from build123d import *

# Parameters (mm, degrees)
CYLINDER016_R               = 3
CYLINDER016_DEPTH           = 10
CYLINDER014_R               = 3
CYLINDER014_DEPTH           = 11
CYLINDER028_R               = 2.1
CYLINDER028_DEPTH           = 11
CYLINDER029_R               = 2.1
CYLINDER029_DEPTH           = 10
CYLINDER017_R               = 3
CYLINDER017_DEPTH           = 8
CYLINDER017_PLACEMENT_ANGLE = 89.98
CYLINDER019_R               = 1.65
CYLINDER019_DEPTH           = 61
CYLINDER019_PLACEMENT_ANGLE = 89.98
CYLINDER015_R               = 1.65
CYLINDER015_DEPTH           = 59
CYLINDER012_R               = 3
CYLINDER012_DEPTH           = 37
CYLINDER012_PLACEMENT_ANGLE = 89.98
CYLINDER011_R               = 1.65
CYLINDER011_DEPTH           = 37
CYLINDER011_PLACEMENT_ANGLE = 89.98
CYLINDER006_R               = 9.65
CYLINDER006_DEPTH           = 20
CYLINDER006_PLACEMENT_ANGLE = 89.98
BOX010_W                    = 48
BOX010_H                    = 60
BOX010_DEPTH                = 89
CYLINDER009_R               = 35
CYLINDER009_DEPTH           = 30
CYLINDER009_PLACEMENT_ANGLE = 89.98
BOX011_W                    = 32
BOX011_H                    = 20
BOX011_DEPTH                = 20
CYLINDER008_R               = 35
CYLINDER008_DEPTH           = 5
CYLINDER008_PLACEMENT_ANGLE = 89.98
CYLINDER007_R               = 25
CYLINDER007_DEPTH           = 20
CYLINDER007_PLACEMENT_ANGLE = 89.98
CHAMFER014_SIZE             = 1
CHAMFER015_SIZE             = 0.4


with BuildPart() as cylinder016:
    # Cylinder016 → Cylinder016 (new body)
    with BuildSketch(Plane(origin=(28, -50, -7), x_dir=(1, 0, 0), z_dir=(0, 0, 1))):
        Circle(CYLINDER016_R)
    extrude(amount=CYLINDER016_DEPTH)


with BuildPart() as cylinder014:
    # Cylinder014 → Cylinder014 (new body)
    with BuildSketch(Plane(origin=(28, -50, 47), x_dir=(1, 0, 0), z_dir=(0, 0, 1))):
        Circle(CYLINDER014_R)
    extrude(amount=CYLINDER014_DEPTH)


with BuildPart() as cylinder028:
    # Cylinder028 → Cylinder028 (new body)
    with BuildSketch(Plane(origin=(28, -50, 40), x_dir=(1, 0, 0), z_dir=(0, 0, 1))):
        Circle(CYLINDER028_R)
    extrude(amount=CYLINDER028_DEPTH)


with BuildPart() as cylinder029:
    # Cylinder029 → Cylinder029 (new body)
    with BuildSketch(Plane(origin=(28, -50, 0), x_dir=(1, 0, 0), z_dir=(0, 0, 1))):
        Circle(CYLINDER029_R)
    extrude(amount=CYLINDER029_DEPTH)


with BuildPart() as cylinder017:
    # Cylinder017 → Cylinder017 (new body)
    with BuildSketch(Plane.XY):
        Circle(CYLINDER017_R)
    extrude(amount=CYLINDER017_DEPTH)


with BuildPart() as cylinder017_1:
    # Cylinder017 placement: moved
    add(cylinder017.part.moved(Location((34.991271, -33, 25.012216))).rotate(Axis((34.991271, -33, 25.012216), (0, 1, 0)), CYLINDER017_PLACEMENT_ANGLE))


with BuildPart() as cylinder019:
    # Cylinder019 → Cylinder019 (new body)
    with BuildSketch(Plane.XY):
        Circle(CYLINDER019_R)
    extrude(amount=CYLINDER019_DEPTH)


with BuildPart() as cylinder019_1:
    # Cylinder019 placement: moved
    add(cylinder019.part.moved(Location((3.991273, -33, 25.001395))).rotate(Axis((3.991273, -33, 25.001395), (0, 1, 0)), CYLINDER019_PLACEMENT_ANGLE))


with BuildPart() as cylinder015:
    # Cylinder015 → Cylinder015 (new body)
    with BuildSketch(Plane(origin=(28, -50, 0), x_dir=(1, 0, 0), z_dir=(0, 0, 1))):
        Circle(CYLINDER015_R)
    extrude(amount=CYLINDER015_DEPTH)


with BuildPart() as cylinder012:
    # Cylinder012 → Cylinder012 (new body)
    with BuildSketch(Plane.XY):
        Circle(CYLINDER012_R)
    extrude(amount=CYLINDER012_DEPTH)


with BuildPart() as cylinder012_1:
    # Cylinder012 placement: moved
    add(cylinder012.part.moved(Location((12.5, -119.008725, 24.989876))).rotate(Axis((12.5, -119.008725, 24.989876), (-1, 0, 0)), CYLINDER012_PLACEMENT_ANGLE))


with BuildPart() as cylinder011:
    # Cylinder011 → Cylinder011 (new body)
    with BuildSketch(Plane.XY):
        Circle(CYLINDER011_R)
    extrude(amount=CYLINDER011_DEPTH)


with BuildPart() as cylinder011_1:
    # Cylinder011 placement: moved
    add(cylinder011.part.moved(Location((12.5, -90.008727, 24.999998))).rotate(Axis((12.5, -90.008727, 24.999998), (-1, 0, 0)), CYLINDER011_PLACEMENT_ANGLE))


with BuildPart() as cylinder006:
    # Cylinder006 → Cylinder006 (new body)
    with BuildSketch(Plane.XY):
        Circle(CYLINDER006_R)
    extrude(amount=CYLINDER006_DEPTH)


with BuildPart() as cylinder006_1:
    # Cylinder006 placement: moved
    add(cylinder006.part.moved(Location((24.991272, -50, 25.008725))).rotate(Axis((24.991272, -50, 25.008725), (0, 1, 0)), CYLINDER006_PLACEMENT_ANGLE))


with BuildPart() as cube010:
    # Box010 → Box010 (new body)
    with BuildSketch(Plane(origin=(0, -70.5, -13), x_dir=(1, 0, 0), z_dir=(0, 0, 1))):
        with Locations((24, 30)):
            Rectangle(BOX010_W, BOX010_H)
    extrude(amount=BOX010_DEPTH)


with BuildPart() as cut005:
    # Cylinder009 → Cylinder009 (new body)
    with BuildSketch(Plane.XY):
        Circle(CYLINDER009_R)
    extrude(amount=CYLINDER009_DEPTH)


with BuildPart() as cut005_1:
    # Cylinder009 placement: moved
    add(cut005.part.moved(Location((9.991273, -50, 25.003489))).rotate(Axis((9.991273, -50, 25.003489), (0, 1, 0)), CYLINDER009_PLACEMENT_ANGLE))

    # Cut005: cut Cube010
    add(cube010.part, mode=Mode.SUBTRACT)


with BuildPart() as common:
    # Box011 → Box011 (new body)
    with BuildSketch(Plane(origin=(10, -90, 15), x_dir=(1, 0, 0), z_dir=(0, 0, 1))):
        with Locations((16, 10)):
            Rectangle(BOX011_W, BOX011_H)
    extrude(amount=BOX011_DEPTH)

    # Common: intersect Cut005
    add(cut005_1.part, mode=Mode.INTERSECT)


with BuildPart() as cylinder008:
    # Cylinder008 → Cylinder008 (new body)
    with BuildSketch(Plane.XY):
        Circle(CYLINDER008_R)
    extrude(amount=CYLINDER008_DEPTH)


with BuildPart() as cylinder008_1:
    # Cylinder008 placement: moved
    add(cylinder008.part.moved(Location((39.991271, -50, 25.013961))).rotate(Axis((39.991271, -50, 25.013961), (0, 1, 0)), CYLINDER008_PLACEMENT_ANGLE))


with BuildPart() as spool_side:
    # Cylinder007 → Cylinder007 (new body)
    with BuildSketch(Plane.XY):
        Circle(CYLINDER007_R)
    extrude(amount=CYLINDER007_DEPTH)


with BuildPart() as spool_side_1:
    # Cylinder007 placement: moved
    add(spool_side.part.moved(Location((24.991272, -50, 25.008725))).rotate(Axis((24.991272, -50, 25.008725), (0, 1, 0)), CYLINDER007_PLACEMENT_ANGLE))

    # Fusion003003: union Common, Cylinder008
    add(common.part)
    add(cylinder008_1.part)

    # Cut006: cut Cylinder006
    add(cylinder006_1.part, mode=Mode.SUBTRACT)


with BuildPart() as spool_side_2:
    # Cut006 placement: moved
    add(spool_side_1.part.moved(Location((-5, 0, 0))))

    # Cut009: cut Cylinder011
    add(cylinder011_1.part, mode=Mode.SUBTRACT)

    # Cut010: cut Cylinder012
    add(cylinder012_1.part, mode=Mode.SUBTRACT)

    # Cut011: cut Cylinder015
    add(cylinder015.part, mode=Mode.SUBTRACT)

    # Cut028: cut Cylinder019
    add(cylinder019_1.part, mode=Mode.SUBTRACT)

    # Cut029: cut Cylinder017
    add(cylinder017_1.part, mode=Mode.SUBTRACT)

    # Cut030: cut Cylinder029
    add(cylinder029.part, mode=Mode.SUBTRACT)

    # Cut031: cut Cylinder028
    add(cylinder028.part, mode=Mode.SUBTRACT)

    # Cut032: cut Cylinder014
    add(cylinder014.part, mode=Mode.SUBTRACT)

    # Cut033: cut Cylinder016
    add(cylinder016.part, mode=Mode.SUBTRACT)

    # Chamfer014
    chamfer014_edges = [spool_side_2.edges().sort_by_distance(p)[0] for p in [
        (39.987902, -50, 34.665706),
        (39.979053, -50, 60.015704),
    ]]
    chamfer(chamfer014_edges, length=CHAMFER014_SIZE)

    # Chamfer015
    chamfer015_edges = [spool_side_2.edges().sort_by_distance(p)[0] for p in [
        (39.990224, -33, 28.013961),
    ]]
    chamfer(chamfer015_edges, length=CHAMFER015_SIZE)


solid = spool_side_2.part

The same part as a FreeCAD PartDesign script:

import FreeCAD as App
import Part
import Sketcher


def edges_at(feature, points):
    """Names of the edges that pass closest to the given points."""
    edges = feature.Shape.Edges
    near = lambda p: min(range(len(edges)), key=lambda i: edges[i].distToShape(Part.Vertex(*p))[0])
    return sorted({f"Edge{near(p) + 1}" for p in points})

doc = App.newDocument("Part")
body = doc.addObject("PartDesign::Body", "Body")

# Sketch on XY plane
sketch1 = doc.addObject("Sketcher::SketchObject", "Sketch")
body.addObject(sketch1)
sketch1.AttachmentSupport = (doc.XY_Plane, [""])
sketch1.MapMode = "FlatFace"
sketch1.AttachmentOffset = App.Placement(App.Vector(0, 0, -7), App.Rotation())
sketch1.addGeometry(Part.Circle(App.Vector(28, -50, 0), App.Vector(0, 0, 1), 3), False)
sketch1.addConstraint([
    Sketcher.Constraint("Diameter", 0, 6.0),
    Sketcher.Constraint("DistanceX", -1, 1, 0, 3, 28.0),
    Sketcher.Constraint("DistanceY", 0, 3, -1, 1, 50.0),
])
pad1 = doc.addObject("PartDesign::Pad", "Pad")
body.addObject(pad1)
pad1.Profile = sketch1
pad1.Length = 10
body2 = doc.addObject("PartDesign::Body", "Body001")

# Sketch on XY plane
sketch2 = doc.addObject("Sketcher::SketchObject", "Sketch001")
body2.addObject(sketch2)
sketch2.AttachmentSupport = (doc.getObject("XY_Plane001"), [""])
sketch2.MapMode = "FlatFace"
sketch2.AttachmentOffset = App.Placement(App.Vector(0, 0, 47), App.Rotation())
sketch2.addGeometry(Part.Circle(App.Vector(28, -50, 0), App.Vector(0, 0, 1), 3), False)
sketch2.addConstraint([
    Sketcher.Constraint("Diameter", 0, 6.0),
    Sketcher.Constraint("DistanceX", -1, 1, 0, 3, 28.0),
    Sketcher.Constraint("DistanceY", 0, 3, -1, 1, 50.0),
])
pad2 = doc.addObject("PartDesign::Pad", "Pad001")
body2.addObject(pad2)
pad2.Profile = sketch2
pad2.Length = 11
body3 = doc.addObject("PartDesign::Body", "Body002")

# Sketch on XY plane
sketch3 = doc.addObject("Sketcher::SketchObject", "Sketch002")
body3.addObject(sketch3)
sketch3.AttachmentSupport = (doc.getObject("XY_Plane002"), [""])
sketch3.MapMode = "FlatFace"
sketch3.AttachmentOffset = App.Placement(App.Vector(0, 0, 40), App.Rotation())
sketch3.addGeometry(Part.Circle(App.Vector(28, -50, 0), App.Vector(0, 0, 1), 2.1), False)
sketch3.addConstraint([
    Sketcher.Constraint("Diameter", 0, 4.2),
    Sketcher.Constraint("DistanceX", -1, 1, 0, 3, 28.0),
    Sketcher.Constraint("DistanceY", 0, 3, -1, 1, 50.0),
])
pad3 = doc.addObject("PartDesign::Pad", "Pad002")
body3.addObject(pad3)
pad3.Profile = sketch3
pad3.Length = 11
body4 = doc.addObject("PartDesign::Body", "Body003")

# Sketch on XY plane
sketch4 = doc.addObject("Sketcher::SketchObject", "Sketch003")
body4.addObject(sketch4)
sketch4.AttachmentSupport = (doc.getObject("XY_Plane003"), [""])
sketch4.MapMode = "FlatFace"
sketch4.addGeometry(Part.Circle(App.Vector(28, -50, 0), App.Vector(0, 0, 1), 2.1), False)
sketch4.addConstraint([
    Sketcher.Constraint("Diameter", 0, 4.2),
    Sketcher.Constraint("DistanceX", -1, 1, 0, 3, 28.0),
    Sketcher.Constraint("DistanceY", 0, 3, -1, 1, 50.0),
])
pad4 = doc.addObject("PartDesign::Pad", "Pad003")
body4.addObject(pad4)
pad4.Profile = sketch4
pad4.Length = 10
body5 = doc.addObject("PartDesign::Body", "Body004")

# Sketch on XY plane
sketch5 = doc.addObject("Sketcher::SketchObject", "Sketch004")
body5.addObject(sketch5)
sketch5.AttachmentSupport = (doc.getObject("XY_Plane004"), [""])
sketch5.MapMode = "FlatFace"
sketch5.addGeometry(Part.Circle(App.Vector(0, 0, 0), App.Vector(0, 0, 1), 3), False)
sketch5.addConstraint([
    Sketcher.Constraint("Coincident", 0, 3, -1, 1),
    Sketcher.Constraint("Diameter", 0, 6.0),
])
pad5 = doc.addObject("PartDesign::Pad", "Pad004")
body5.addObject(pad5)
pad5.Profile = sketch5
pad5.Length = 8
body6 = doc.addObject("PartDesign::Body", "Body005")
doc.recompute()

body5.Placement = App.Placement(App.Vector(34.991271, -33, 25.012216), App.Rotation(App.Vector(0, 1, 0), 89.98))
boolean = doc.addObject("PartDesign::Boolean", "Boolean")
body6.addObject(boolean)
boolean.Type = "Fuse"
boolean.addObjects([body5])
body7 = doc.addObject("PartDesign::Body", "Body006")

# Sketch on XY plane
sketch6 = doc.addObject("Sketcher::SketchObject", "Sketch005")
body7.addObject(sketch6)
sketch6.AttachmentSupport = (doc.getObject("XY_Plane006"), [""])
sketch6.MapMode = "FlatFace"
sketch6.addGeometry(Part.Circle(App.Vector(0, 0, 0), App.Vector(0, 0, 1), 1.6), False)
sketch6.addConstraint([
    Sketcher.Constraint("Coincident", 0, 3, -1, 1),
    Sketcher.Constraint("Diameter", 0, 3.3),
])
pad6 = doc.addObject("PartDesign::Pad", "Pad005")
body7.addObject(pad6)
pad6.Profile = sketch6
pad6.Length = 61
body8 = doc.addObject("PartDesign::Body", "Body007")
doc.recompute()

body7.Placement = App.Placement(App.Vector(3.991273, -33, 25.001395), App.Rotation(App.Vector(0, 1, 0), 89.98))
boolean2 = doc.addObject("PartDesign::Boolean", "Boolean001")
body8.addObject(boolean2)
boolean2.Type = "Fuse"
boolean2.addObjects([body7])
body9 = doc.addObject("PartDesign::Body", "Body008")

# Sketch on XY plane
sketch7 = doc.addObject("Sketcher::SketchObject", "Sketch006")
body9.addObject(sketch7)
sketch7.AttachmentSupport = (doc.getObject("XY_Plane008"), [""])
sketch7.MapMode = "FlatFace"
sketch7.addGeometry(Part.Circle(App.Vector(28, -50, 0), App.Vector(0, 0, 1), 1.6), False)
sketch7.addConstraint([
    Sketcher.Constraint("Diameter", 0, 3.3),
    Sketcher.Constraint("DistanceX", -1, 1, 0, 3, 28.0),
    Sketcher.Constraint("DistanceY", 0, 3, -1, 1, 50.0),
])
pad7 = doc.addObject("PartDesign::Pad", "Pad006")
body9.addObject(pad7)
pad7.Profile = sketch7
pad7.Length = 59
body10 = doc.addObject("PartDesign::Body", "Body009")

# Sketch on XY plane
sketch8 = doc.addObject("Sketcher::SketchObject", "Sketch007")
body10.addObject(sketch8)
sketch8.AttachmentSupport = (doc.getObject("XY_Plane009"), [""])
sketch8.MapMode = "FlatFace"
sketch8.addGeometry(Part.Circle(App.Vector(0, 0, 0), App.Vector(0, 0, 1), 3), False)
sketch8.addConstraint([
    Sketcher.Constraint("Coincident", 0, 3, -1, 1),
    Sketcher.Constraint("Diameter", 0, 6.0),
])
pad8 = doc.addObject("PartDesign::Pad", "Pad007")
body10.addObject(pad8)
pad8.Profile = sketch8
pad8.Length = 37
body11 = doc.addObject("PartDesign::Body", "Body010")
doc.recompute()

body10.Placement = App.Placement(App.Vector(12.5, -119.008725, 24.989876), App.Rotation(App.Vector(-1, 0, 0), 89.98))
boolean3 = doc.addObject("PartDesign::Boolean", "Boolean002")
body11.addObject(boolean3)
boolean3.Type = "Fuse"
boolean3.addObjects([body10])
body12 = doc.addObject("PartDesign::Body", "Body011")

# Sketch on XY plane
sketch9 = doc.addObject("Sketcher::SketchObject", "Sketch008")
body12.addObject(sketch9)
sketch9.AttachmentSupport = (doc.getObject("XY_Plane011"), [""])
sketch9.MapMode = "FlatFace"
sketch9.addGeometry(Part.Circle(App.Vector(0, 0, 0), App.Vector(0, 0, 1), 1.6), False)
sketch9.addConstraint([
    Sketcher.Constraint("Coincident", 0, 3, -1, 1),
    Sketcher.Constraint("Diameter", 0, 3.3),
])
pad9 = doc.addObject("PartDesign::Pad", "Pad008")
body12.addObject(pad9)
pad9.Profile = sketch9
pad9.Length = 37
body13 = doc.addObject("PartDesign::Body", "Body012")
doc.recompute()

body12.Placement = App.Placement(App.Vector(12.5, -90.008727, 24.999998), App.Rotation(App.Vector(-1, 0, 0), 89.98))
boolean4 = doc.addObject("PartDesign::Boolean", "Boolean003")
body13.addObject(boolean4)
boolean4.Type = "Fuse"
boolean4.addObjects([body12])
body14 = doc.addObject("PartDesign::Body", "Body013")

# Sketch on XY plane
sketch10 = doc.addObject("Sketcher::SketchObject", "Sketch009")
body14.addObject(sketch10)
sketch10.AttachmentSupport = (doc.getObject("XY_Plane013"), [""])
sketch10.MapMode = "FlatFace"
sketch10.addGeometry(Part.Circle(App.Vector(0, 0, 0), App.Vector(0, 0, 1), 10), False)
sketch10.addConstraint([
    Sketcher.Constraint("Coincident", 0, 3, -1, 1),
    Sketcher.Constraint("Diameter", 0, 19.3),
])
pad10 = doc.addObject("PartDesign::Pad", "Pad009")
body14.addObject(pad10)
pad10.Profile = sketch10
pad10.Length = 20
body15 = doc.addObject("PartDesign::Body", "Body014")
doc.recompute()

body14.Placement = App.Placement(App.Vector(24.991272, -50, 25.008725), App.Rotation(App.Vector(0, 1, 0), 89.98))
boolean5 = doc.addObject("PartDesign::Boolean", "Boolean004")
body15.addObject(boolean5)
boolean5.Type = "Fuse"
boolean5.addObjects([body14])
body16 = doc.addObject("PartDesign::Body", "Body015")

# Sketch on XY plane
sketch11 = doc.addObject("Sketcher::SketchObject", "Sketch010")
body16.addObject(sketch11)
sketch11.AttachmentSupport = (doc.getObject("XY_Plane015"), [""])
sketch11.MapMode = "FlatFace"
sketch11.AttachmentOffset = App.Placement(App.Vector(0, 0, -13), App.Rotation())
sketch11.addGeometry([
    Part.LineSegment(App.Vector(0, -10, 0), App.Vector(0, -70, 0)),
    Part.LineSegment(App.Vector(0, -70, 0), App.Vector(48, -70, 0)),
    Part.LineSegment(App.Vector(48, -70, 0), App.Vector(48, -10, 0)),
    Part.LineSegment(App.Vector(48, -10, 0), App.Vector(0, -10, 0)),
], False)
sketch11.addConstraint([
    Sketcher.Constraint("Coincident", 0, 2, 1, 1),
    Sketcher.Constraint("Coincident", 1, 2, 2, 1),
    Sketcher.Constraint("Coincident", 2, 2, 3, 1),
    Sketcher.Constraint("Coincident", 3, 2, 0, 1),
    Sketcher.Constraint("Vertical", 0),
    Sketcher.Constraint("Horizontal", 1),
    Sketcher.Constraint("Vertical", 2),
    Sketcher.Constraint("Horizontal", 3),
    Sketcher.Constraint("PointOnObject", 0, 2, -2),
    Sketcher.Constraint("DistanceX", 1, 1, 1, 2, 48.0),
    Sketcher.Constraint("DistanceY", 0, 2, 0, 1, 60.0),
    Sketcher.Constraint("DistanceY", 0, 2, -1, 1, 70.5),
])
pad11 = doc.addObject("PartDesign::Pad", "Pad010")
body16.addObject(pad11)
pad11.Profile = sketch11
pad11.Length = 89
body17 = doc.addObject("PartDesign::Body", "Body016")

# Sketch on XY plane
sketch12 = doc.addObject("Sketcher::SketchObject", "Sketch011")
body17.addObject(sketch12)
sketch12.AttachmentSupport = (doc.getObject("XY_Plane016"), [""])
sketch12.MapMode = "FlatFace"
sketch12.addGeometry(Part.Circle(App.Vector(0, 0, 0), App.Vector(0, 0, 1), 35), False)
sketch12.addConstraint([
    Sketcher.Constraint("Coincident", 0, 3, -1, 1),
    Sketcher.Constraint("Diameter", 0, 70.0),
])
pad12 = doc.addObject("PartDesign::Pad", "Pad011")
body17.addObject(pad12)
pad12.Profile = sketch12
pad12.Length = 30
body18 = doc.addObject("PartDesign::Body", "Body017")
doc.recompute()

body17.Placement = App.Placement(App.Vector(9.991273, -50, 25.003489), App.Rotation(App.Vector(0, 1, 0), 89.98))
boolean6 = doc.addObject("PartDesign::Boolean", "Boolean005")
body18.addObject(boolean6)
boolean6.Type = "Fuse"
boolean6.addObjects([body17])
doc.recompute()

boolean7 = doc.addObject("PartDesign::Boolean", "Boolean006")
body18.addObject(boolean7)
boolean7.Type = "Cut"
boolean7.addObjects([body16])
body19 = doc.addObject("PartDesign::Body", "Body018")

# Sketch on XY plane
sketch13 = doc.addObject("Sketcher::SketchObject", "Sketch012")
body19.addObject(sketch13)
sketch13.AttachmentSupport = (doc.getObject("XY_Plane018"), [""])
sketch13.MapMode = "FlatFace"
sketch13.AttachmentOffset = App.Placement(App.Vector(0, 0, 15), App.Rotation())
sketch13.addGeometry([
    Part.LineSegment(App.Vector(10, -70, 0), App.Vector(10, -90, 0)),
    Part.LineSegment(App.Vector(10, -90, 0), App.Vector(42, -90, 0)),
    Part.LineSegment(App.Vector(42, -90, 0), App.Vector(42, -70, 0)),
    Part.LineSegment(App.Vector(42, -70, 0), App.Vector(10, -70, 0)),
], False)
sketch13.addConstraint([
    Sketcher.Constraint("Coincident", 0, 2, 1, 1),
    Sketcher.Constraint("Coincident", 1, 2, 2, 1),
    Sketcher.Constraint("Coincident", 2, 2, 3, 1),
    Sketcher.Constraint("Coincident", 3, 2, 0, 1),
    Sketcher.Constraint("Vertical", 0),
    Sketcher.Constraint("Horizontal", 1),
    Sketcher.Constraint("Vertical", 2),
    Sketcher.Constraint("Horizontal", 3),
    Sketcher.Constraint("DistanceX", 1, 1, 1, 2, 32.0),
    Sketcher.Constraint("DistanceY", 0, 2, 0, 1, 20.0),
    Sketcher.Constraint("DistanceX", -1, 1, 0, 2, 10.0),
    Sketcher.Constraint("DistanceY", 0, 2, -1, 1, 90.0),
])
pad13 = doc.addObject("PartDesign::Pad", "Pad012")
body19.addObject(pad13)
pad13.Profile = sketch13
pad13.Length = 20
doc.recompute()

boolean8 = doc.addObject("PartDesign::Boolean", "Boolean007")
body19.addObject(boolean8)
boolean8.Type = "Common"
boolean8.addObjects([body18])
body20 = doc.addObject("PartDesign::Body", "Body019")

# Sketch on XY plane
sketch14 = doc.addObject("Sketcher::SketchObject", "Sketch013")
body20.addObject(sketch14)
sketch14.AttachmentSupport = (doc.getObject("XY_Plane019"), [""])
sketch14.MapMode = "FlatFace"
sketch14.addGeometry(Part.Circle(App.Vector(0, 0, 0), App.Vector(0, 0, 1), 35), False)
sketch14.addConstraint([
    Sketcher.Constraint("Coincident", 0, 3, -1, 1),
    Sketcher.Constraint("Diameter", 0, 70.0),
])
pad14 = doc.addObject("PartDesign::Pad", "Pad013")
body20.addObject(pad14)
pad14.Profile = sketch14
pad14.Length = 5
body21 = doc.addObject("PartDesign::Body", "Body020")
doc.recompute()

body20.Placement = App.Placement(App.Vector(39.991271, -50, 25.013961), App.Rotation(App.Vector(0, 1, 0), 89.98))
boolean9 = doc.addObject("PartDesign::Boolean", "Boolean008")
body21.addObject(boolean9)
boolean9.Type = "Fuse"
boolean9.addObjects([body20])
body22 = doc.addObject("PartDesign::Body", "Body021")

# Sketch on XY plane
sketch15 = doc.addObject("Sketcher::SketchObject", "Sketch014")
body22.addObject(sketch15)
sketch15.AttachmentSupport = (doc.getObject("XY_Plane021"), [""])
sketch15.MapMode = "FlatFace"
sketch15.addGeometry(Part.Circle(App.Vector(0, 0, 0), App.Vector(0, 0, 1), 25), False)
sketch15.addConstraint([
    Sketcher.Constraint("Coincident", 0, 3, -1, 1),
    Sketcher.Constraint("Diameter", 0, 50.0),
])
pad15 = doc.addObject("PartDesign::Pad", "Pad014")
body22.addObject(pad15)
pad15.Profile = sketch15
pad15.Length = 20
body23 = doc.addObject("PartDesign::Body", "Body022")
doc.recompute()

body22.Placement = App.Placement(App.Vector(24.991272, -50, 25.008725), App.Rotation(App.Vector(0, 1, 0), 89.98))
boolean10 = doc.addObject("PartDesign::Boolean", "Boolean009")
body23.addObject(boolean10)
boolean10.Type = "Fuse"
boolean10.addObjects([body22])
doc.recompute()

boolean11 = doc.addObject("PartDesign::Boolean", "Boolean010")
body23.addObject(boolean11)
boolean11.Type = "Fuse"
boolean11.addObjects([body19])
doc.recompute()

boolean12 = doc.addObject("PartDesign::Boolean", "Boolean011")
body23.addObject(boolean12)
boolean12.Type = "Fuse"
boolean12.addObjects([body21])
doc.recompute()

boolean13 = doc.addObject("PartDesign::Boolean", "Boolean012")
body23.addObject(boolean13)
boolean13.Type = "Cut"
boolean13.addObjects([body15])
body24 = doc.addObject("PartDesign::Body", "Body023")
doc.recompute()

body23.Placement = App.Placement(App.Vector(-5, 0, 0), App.Rotation(App.Vector(0, 0, 1), 0))
boolean14 = doc.addObject("PartDesign::Boolean", "Boolean013")
body24.addObject(boolean14)
boolean14.Type = "Fuse"
boolean14.addObjects([body23])
doc.recompute()

boolean15 = doc.addObject("PartDesign::Boolean", "Boolean014")
body24.addObject(boolean15)
boolean15.Type = "Cut"
boolean15.addObjects([body13])
doc.recompute()

boolean16 = doc.addObject("PartDesign::Boolean", "Boolean015")
body24.addObject(boolean16)
boolean16.Type = "Cut"
boolean16.addObjects([body11])
doc.recompute()

boolean17 = doc.addObject("PartDesign::Boolean", "Boolean016")
body24.addObject(boolean17)
boolean17.Type = "Cut"
boolean17.addObjects([body9])
doc.recompute()

boolean18 = doc.addObject("PartDesign::Boolean", "Boolean017")
body24.addObject(boolean18)
boolean18.Type = "Cut"
boolean18.addObjects([body8])
doc.recompute()

boolean19 = doc.addObject("PartDesign::Boolean", "Boolean018")
body24.addObject(boolean19)
boolean19.Type = "Cut"
boolean19.addObjects([body6])
doc.recompute()

boolean20 = doc.addObject("PartDesign::Boolean", "Boolean019")
body24.addObject(boolean20)
boolean20.Type = "Cut"
boolean20.addObjects([body4])
doc.recompute()

boolean21 = doc.addObject("PartDesign::Boolean", "Boolean020")
body24.addObject(boolean21)
boolean21.Type = "Cut"
boolean21.addObjects([body3])
doc.recompute()

boolean22 = doc.addObject("PartDesign::Boolean", "Boolean021")
body24.addObject(boolean22)
boolean22.Type = "Cut"
boolean22.addObjects([body2])
doc.recompute()

boolean23 = doc.addObject("PartDesign::Boolean", "Boolean022")
body24.addObject(boolean23)
boolean23.Type = "Cut"
boolean23.addObjects([body])
doc.recompute()

chamfer = doc.addObject("PartDesign::Chamfer", "Chamfer")
body24.addObject(chamfer)
chamfer.Base = (boolean23, edges_at(boolean23, [(39.988, -50, 34.666), (39.979, -50, 60.016)]))
chamfer.Size = 1
doc.recompute()

chamfer2 = doc.addObject("PartDesign::Chamfer", "Chamfer001")
body24.addObject(chamfer2)
chamfer2.Base = (chamfer, edges_at(chamfer, [(39.99, -33, 28.014)]))
chamfer2.Size = 0.4

doc.recompute()
